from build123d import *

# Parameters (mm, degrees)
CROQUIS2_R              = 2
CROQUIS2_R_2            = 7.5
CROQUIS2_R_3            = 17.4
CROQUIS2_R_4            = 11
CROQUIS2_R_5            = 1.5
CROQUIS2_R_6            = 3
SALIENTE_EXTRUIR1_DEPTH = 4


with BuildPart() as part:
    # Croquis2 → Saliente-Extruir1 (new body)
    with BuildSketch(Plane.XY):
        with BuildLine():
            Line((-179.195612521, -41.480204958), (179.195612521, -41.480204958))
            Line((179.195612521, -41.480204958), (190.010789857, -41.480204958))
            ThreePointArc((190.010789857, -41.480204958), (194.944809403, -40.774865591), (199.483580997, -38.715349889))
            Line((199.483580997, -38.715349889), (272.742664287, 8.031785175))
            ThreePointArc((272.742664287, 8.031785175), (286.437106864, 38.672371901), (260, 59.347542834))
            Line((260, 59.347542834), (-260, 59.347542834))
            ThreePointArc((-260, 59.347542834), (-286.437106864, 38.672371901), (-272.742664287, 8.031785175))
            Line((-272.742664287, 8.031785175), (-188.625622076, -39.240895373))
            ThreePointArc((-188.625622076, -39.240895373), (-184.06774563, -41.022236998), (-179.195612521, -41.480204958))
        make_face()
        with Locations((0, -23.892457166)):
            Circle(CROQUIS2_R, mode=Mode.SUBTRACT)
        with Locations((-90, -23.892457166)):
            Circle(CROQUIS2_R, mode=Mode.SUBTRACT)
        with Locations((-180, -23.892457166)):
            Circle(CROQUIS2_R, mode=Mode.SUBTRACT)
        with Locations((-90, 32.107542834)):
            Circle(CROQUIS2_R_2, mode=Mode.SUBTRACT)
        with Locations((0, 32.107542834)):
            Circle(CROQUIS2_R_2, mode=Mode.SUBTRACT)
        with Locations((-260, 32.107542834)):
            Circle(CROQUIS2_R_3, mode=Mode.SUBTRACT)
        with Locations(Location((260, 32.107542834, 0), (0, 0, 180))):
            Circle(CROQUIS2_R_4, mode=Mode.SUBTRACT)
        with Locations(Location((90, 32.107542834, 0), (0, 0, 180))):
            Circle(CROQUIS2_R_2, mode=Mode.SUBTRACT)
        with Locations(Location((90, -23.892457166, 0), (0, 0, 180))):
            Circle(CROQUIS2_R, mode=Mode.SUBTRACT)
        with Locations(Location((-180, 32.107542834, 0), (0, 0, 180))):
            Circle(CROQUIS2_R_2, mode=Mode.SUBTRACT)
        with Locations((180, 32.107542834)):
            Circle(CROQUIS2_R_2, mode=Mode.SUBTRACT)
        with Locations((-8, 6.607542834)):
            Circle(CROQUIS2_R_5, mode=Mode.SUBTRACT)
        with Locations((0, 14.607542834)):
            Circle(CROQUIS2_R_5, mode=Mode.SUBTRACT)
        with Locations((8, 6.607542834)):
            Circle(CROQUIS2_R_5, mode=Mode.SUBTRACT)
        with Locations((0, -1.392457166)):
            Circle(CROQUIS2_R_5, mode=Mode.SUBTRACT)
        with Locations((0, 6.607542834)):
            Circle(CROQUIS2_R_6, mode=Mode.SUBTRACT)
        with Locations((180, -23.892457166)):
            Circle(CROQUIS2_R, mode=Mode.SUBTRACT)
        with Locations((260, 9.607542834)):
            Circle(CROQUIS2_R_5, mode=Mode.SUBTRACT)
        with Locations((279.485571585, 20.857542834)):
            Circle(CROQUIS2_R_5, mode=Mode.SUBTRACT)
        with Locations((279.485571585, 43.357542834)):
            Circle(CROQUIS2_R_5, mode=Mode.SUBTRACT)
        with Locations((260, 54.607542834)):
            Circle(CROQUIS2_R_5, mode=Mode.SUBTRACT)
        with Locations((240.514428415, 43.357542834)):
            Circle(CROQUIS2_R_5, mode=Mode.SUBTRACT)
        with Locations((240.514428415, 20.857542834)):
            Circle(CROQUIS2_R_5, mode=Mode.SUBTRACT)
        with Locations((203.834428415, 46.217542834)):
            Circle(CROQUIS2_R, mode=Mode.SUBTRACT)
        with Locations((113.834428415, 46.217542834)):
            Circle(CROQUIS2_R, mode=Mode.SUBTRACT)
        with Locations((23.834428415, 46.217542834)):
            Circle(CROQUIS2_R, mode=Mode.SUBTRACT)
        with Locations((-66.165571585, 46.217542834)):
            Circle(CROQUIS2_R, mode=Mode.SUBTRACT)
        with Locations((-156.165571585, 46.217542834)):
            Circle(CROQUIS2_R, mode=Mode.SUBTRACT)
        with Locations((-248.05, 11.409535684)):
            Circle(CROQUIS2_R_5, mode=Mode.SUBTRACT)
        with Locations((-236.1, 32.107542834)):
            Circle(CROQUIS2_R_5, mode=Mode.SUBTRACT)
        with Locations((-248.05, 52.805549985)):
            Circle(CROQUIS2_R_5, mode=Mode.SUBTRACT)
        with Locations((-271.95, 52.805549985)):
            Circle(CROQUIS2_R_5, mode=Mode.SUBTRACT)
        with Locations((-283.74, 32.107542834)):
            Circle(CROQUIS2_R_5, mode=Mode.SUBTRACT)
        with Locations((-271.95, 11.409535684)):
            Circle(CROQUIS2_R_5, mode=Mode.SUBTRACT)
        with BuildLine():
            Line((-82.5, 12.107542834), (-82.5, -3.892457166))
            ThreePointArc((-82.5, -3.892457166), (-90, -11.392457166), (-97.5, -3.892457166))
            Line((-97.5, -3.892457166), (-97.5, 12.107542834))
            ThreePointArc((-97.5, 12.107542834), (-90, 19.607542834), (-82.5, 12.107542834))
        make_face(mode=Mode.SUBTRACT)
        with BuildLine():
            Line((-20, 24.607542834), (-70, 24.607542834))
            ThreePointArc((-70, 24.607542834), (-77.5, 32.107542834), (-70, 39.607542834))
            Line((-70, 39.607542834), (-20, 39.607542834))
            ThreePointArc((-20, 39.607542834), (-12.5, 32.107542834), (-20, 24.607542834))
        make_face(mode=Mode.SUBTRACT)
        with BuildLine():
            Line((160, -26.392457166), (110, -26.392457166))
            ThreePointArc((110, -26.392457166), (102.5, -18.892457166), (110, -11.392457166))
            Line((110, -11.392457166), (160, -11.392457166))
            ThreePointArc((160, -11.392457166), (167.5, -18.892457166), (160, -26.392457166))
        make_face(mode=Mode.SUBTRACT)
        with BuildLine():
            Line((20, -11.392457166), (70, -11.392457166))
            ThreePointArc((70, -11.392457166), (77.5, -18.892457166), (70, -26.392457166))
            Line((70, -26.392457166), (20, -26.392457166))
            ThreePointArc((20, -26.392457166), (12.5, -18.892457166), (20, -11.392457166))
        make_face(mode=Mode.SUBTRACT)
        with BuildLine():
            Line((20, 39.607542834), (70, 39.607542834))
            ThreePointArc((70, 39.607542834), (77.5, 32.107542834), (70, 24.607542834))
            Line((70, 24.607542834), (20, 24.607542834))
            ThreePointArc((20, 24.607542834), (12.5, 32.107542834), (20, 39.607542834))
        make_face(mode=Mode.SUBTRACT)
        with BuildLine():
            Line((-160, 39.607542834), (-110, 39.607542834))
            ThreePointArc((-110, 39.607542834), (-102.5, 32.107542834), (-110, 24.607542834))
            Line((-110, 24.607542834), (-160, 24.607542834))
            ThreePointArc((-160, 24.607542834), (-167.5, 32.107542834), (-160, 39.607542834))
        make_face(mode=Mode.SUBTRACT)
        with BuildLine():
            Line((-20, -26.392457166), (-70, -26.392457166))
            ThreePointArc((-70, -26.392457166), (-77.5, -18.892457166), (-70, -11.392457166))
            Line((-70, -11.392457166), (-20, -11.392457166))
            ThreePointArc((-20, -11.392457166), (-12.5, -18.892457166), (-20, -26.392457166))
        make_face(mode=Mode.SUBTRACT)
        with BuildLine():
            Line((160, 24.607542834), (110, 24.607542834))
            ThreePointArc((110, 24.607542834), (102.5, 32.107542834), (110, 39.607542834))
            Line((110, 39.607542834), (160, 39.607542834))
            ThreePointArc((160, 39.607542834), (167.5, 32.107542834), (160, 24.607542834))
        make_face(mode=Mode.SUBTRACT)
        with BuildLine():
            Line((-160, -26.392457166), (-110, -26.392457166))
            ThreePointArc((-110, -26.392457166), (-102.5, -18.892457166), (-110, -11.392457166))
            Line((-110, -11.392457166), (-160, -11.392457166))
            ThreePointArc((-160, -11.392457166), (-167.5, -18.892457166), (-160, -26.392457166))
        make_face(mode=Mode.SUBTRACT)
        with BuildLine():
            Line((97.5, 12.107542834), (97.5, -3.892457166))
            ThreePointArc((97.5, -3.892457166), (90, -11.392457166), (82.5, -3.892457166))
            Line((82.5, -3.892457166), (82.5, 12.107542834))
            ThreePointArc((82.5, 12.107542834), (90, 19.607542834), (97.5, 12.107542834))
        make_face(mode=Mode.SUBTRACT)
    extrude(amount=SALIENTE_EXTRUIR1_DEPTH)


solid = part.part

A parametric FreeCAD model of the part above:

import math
import FreeCAD as App
import Part
import Sketcher
from FreeCAD import Vector

doc = App.newDocument("Part")
body = doc.addObject("PartDesign::Body", "Body")

sketch1 = doc.addObject("Sketcher::SketchObject", "Sketch")
body.addObject(sketch1)
sketch1.AttachmentSupport = (doc.XY_Plane, [""])
sketch1.MapMode = "FlatFace"
sketch1.addGeometry([
    Part.LineSegment(Vector(-179.2, -41.5, 0), Vector(190, -41.5, 0)),
    Part.ArcOfCircle(Part.Circle(Vector(190, -23.9, 0), Vector(0, 0, 1), 17.6), math.radians(-90), math.radians(-57)),
    Part.LineSegment(Vector(199.5, -38.7, 0), Vector(272.7, 8, 0)),
    Part.ArcOfCircle(Part.Circle(Vector(260, 32.1, 0), Vector(0, 0, 1), 27.2), math.radians(-62), math.radians(90)),
    Part.LineSegment(Vector(260, 59.3, 0), Vector(-260, 59.3, 0)),
    Part.ArcOfCircle(Part.Circle(Vector(-260, 32.1, 0), Vector(0, 0, 1), 27.2), math.radians(90), math.radians(242)),
    Part.LineSegment(Vector(-272.7, 8, 0), Vector(-188.6, -39.2, 0)),
    Part.ArcOfCircle(Part.Circle(Vector(-180, -23.9, 0), Vector(0, 0, 1), 17.6), math.radians(-119), math.radians(-87)),
    Part.Circle(Vector(-180, -23.9, 0), Vector(0, 0, 1), 2),
    Part.Circle(Vector(-90, -23.9, 0), Vector(0, 0, 1), 2),
    Part.LineSegment(Vector(-110, -26.4, 0), Vector(-160, -26.4, 0)),
    Part.ArcOfCircle(Part.Circle(Vector(-160, -18.9, 0), Vector(0, 0, 1), 7.5), math.radians(90), math.radians(270)),
    Part.LineSegment(Vector(-160, -11.4, 0), Vector(-110, -11.4, 0)),
    Part.ArcOfCircle(Part.Circle(Vector(-110, -18.9, 0), Vector(0, 0, 1), 7.5), math.radians(-90), math.radians(90)),
    Part.ArcOfCircle(Part.Circle(Vector(-20, -18.9, 0), Vector(0, 0, 1), 7.5), math.radians(-90), math.radians(90)),
    Part.LineSegment(Vector(-20, -26.4, 0), Vector(-70, -26.4, 0)),
    Part.ArcOfCircle(Part.Circle(Vector(-70, -18.9, 0), Vector(0, 0, 1), 7.5), math.radians(90), math.radians(270)),
    Part.LineSegment(Vector(-70, -11.4, 0), Vector(-20, -11.4, 0)),
    Part.Circle(Vector(-271.9, 11.4, 0), Vector(0, 0, 1), 1.5),
    Part.Circle(Vector(-248.1, 11.4, 0), Vector(0, 0, 1), 1.5),
    Part.ArcOfCircle(Part.Circle(Vector(-90, 12.1, 0), Vector(0, 0, 1), 7.5), math.radians(0), math.radians(180)),
    Part.LineSegment(Vector(-82.5, 12.1, 0), Vector(-82.5, -3.9, 0)),
    Part.ArcOfCircle(Part.Circle(Vector(-90, -3.9, 0), Vector(0, 0, 1), 7.5), math.radians(180), math.radians(360)),
    Part.LineSegment(Vector(-97.5, -3.9, 0), Vector(-97.5, 12.1, 0)),
    Part.Circle(Vector(-8, 6.6, 0), Vector(0, 0, 1), 1.5),
    Part.Circle(Vector(0, -23.9, 0), Vector(0, 0, 1), 2),
    Part.ArcOfCircle(Part.Circle(Vector(20, -18.9, 0), Vector(0, 0, 1), 7.5), math.radians(90), math.radians(270)),
    Part.LineSegment(Vector(20, -11.4, 0), Vector(70, -11.4, 0)),
    Part.ArcOfCircle(Part.Circle(Vector(70, -18.9, 0), Vector(0, 0, 1), 7.5), math.radians(-90), math.radians(90)),
    Part.LineSegment(Vector(70, -26.4, 0), Vector(20, -26.4, 0)),
    Part.Circle(Vector(90, -23.9, 0), Vector(0, 0, 1), 2),
    Part.ArcOfCircle(Part.Circle(Vector(160, -18.9, 0), Vector(0, 0, 1), 7.5), math.radians(-90), math.radians(90)),
    Part.LineSegment(Vector(160, -26.4, 0), Vector(110, -26.4, 0)),
    Part.ArcOfCircle(Part.Circle(Vector(110, -18.9, 0), Vector(0, 0, 1), 7.5), math.radians(90), math.radians(270)),
    Part.LineSegment(Vector(110, -11.4, 0), Vector(160, -11.4, 0)),
    Part.Circle(Vector(180, -23.9, 0), Vector(0, 0, 1), 2),
    Part.Circle(Vector(0, -1.4, 0), Vector(0, 0, 1), 1.5),
    Part.ArcOfCircle(Part.Circle(Vector(90, 12.1, 0), Vector(0, 0, 1), 7.5), math.radians(0), math.radians(180)),
    Part.LineSegment(Vector(97.5, 12.1, 0), Vector(97.5, -3.9, 0)),
    Part.ArcOfCircle(Part.Circle(Vector(90, -3.9, 0), Vector(0, 0, 1), 7.5), math.radians(180), math.radians(360)),
    Part.LineSegment(Vector(82.5, -3.9, 0), Vector(82.5, 12.1, 0)),
    Part.Circle(Vector(0, 6.6, 0), Vector(0, 0, 1), 3),
    Part.Circle(Vector(8, 6.6, 0), Vector(0, 0, 1), 1.5),
    Part.Circle(Vector(0, 14.6, 0), Vector(0, 0, 1), 1.5),
    Part.Circle(Vector(260, 9.6, 0), Vector(0, 0, 1), 1.5),
    Part.Circle(Vector(-283.7, 32.1, 0), Vector(0, 0, 1), 1.5),
    Part.Circle(Vector(-260, 32.1, 0), Vector(0, 0, 1), 17.4),
    Part.Circle(Vector(-236.1, 32.1, 0), Vector(0, 0, 1), 1.5),
    Part.Circle(Vector(-180, 32.1, 0), Vector(0, 0, 1), 7.5),
    Part.ArcOfCircle(Part.Circle(Vector(-160, 32.1, 0), Vector(0, 0, 1), 7.5), math.radians(90), math.radians(270)),
    Part.LineSegment(Vector(-160, 39.6, 0), Vector(-110, 39.6, 0)),
    Part.ArcOfCircle(Part.Circle(Vector(-110, 32.1, 0), Vector(0, 0, 1), 7.5), math.radians(-90), math.radians(90)),
    Part.LineSegment(Vector(-110, 24.6, 0), Vector(-160, 24.6, 0)),
    Part.Circle(Vector(-90, 32.1, 0), Vector(0, 0, 1), 7.5),
    Part.ArcOfCircle(Part.Circle(Vector(-20, 32.1, 0), Vector(0, 0, 1), 7.5), math.radians(-90), math.radians(90)),
    Part.LineSegment(Vector(-20, 24.6, 0), Vector(-70, 24.6, 0)),
    Part.ArcOfCircle(Part.Circle(Vector(-70, 32.1, 0), Vector(0, 0, 1), 7.5), math.radians(90), math.radians(270)),
    Part.LineSegment(Vector(-70, 39.6, 0), Vector(-20, 39.6, 0)),
    Part.Circle(Vector(-271.9, 52.8, 0), Vector(0, 0, 1), 1.5),
    Part.Circle(Vector(-248.1, 52.8, 0), Vector(0, 0, 1), 1.5),
    Part.Circle(Vector(-156.2, 46.2, 0), Vector(0, 0, 1), 2),
    Part.Circle(Vector(-66.2, 46.2, 0), Vector(0, 0, 1), 2),
    Part.Circle(Vector(0, 32.1, 0), Vector(0, 0, 1), 7.5),
    Part.ArcOfCircle(Part.Circle(Vector(20, 32.1, 0), Vector(0, 0, 1), 7.5), math.radians(90), math.radians(270)),
    Part.LineSegment(Vector(20, 39.6, 0), Vector(70, 39.6, 0)),
    Part.ArcOfCircle(Part.Circle(Vector(70, 32.1, 0), Vector(0, 0, 1), 7.5), math.radians(-90), math.radians(90)),
    Part.LineSegment(Vector(70, 24.6, 0), Vector(20, 24.6, 0)),
    Part.Circle(Vector(90, 32.1, 0), Vector(0, 0, 1), 7.5),
    Part.ArcOfCircle(Part.Circle(Vector(160, 32.1, 0), Vector(0, 0, 1), 7.5), math.radians(-90), math.radians(90)),
    Part.LineSegment(Vector(160, 24.6, 0), Vector(110, 24.6, 0)),
    Part.ArcOfCircle(Part.Circle(Vector(110, 32.1, 0), Vector(0, 0, 1), 7.5), math.radians(90), math.radians(270)),
    Part.LineSegment(Vector(110, 39.6, 0), Vector(160, 39.6, 0)),
    Part.Circle(Vector(240.5, 20.9, 0), Vector(0, 0, 1), 1.5),
    Part.Circle(Vector(279.5, 20.9, 0), Vector(0, 0, 1), 1.5),
    Part.Circle(Vector(180, 32.1, 0), Vector(0, 0, 1), 7.5),
    Part.Circle(Vector(260, 32.1, 0), Vector(0, 0, 1), 11),
    Part.Circle(Vector(23.8, 46.2, 0), Vector(0, 0, 1), 2),
    Part.Circle(Vector(113.8, 46.2, 0), Vector(0, 0, 1), 2),
    Part.Circle(Vector(240.5, 43.4, 0), Vector(0, 0, 1), 1.5),
    Part.Circle(Vector(279.5, 43.4, 0), Vector(0, 0, 1), 1.5),
    Part.Circle(Vector(203.8, 46.2, 0), Vector(0, 0, 1), 2),
    Part.Circle(Vector(260, 54.6, 0), Vector(0, 0, 1), 1.5),
], False)
sketch1.addConstraint([
    Sketcher.Constraint("Tangent", 0, 2, 1, 1),
    Sketcher.Constraint("Tangent", 1, 2, 2, 1),
    Sketcher.Constraint("Coincident", 2, 2, 3, 1),
    Sketcher.Constraint("Tangent", 3, 2, 4, 1),
    Sketcher.Constraint("Tangent", 4, 2, 5, 1),
    Sketcher.Constraint("Coincident", 5, 2, 6, 1),
    Sketcher.Constraint("Tangent", 6, 2, 7, 1),
    Sketcher.Constraint("Coincident", 7, 2, 0, 1),
    Sketcher.Constraint("Tangent", 10, 2, 11, 2),
    Sketcher.Constraint("Tangent", 11, 1, 12, 1),
    Sketcher.Constraint("Tangent", 12, 2, 13, 2),
    Sketcher.Constraint("Tangent", 13, 1, 10, 1),
    Sketcher.Constraint("Tangent", 14, 1, 15, 1),
    Sketcher.Constraint("Tangent", 15, 2, 16, 2),
    Sketcher.Constraint("Tangent", 16, 1, 17, 1),
    Sketcher.Constraint("Tangent", 17, 2, 14, 2),
    Sketcher.Constraint("Tangent", 20, 1, 21, 1),
    Sketcher.Constraint("Tangent", 21, 2, 22, 2),
    Sketcher.Constraint("Tangent", 22, 1, 23, 1),
    Sketcher.Constraint("Tangent", 23, 2, 20, 2),
    Sketcher.Constraint("Tangent", 26, 1, 27, 1),
    Sketcher.Constraint("Tangent", 27, 2, 28, 2),
    Sketcher.Constraint("Tangent", 28, 1, 29, 1),
    Sketcher.Constraint("Tangent", 29, 2, 26, 2),
    Sketcher.Constraint("Tangent", 31, 1, 32, 1),
    Sketcher.Constraint("Tangent", 32, 2, 33, 2),
    Sketcher.Constraint("Tangent", 33, 1, 34, 1),
    Sketcher.Constraint("Tangent", 34, 2, 31, 2),
    Sketcher.Constraint("Tangent", 37, 1, 38, 1),
    Sketcher.Constraint("Tangent", 38, 2, 39, 2),
    Sketcher.Constraint("Tangent", 39, 1, 40, 1),
    Sketcher.Constraint("Tangent", 40, 2, 37, 2),
    Sketcher.Constraint("Tangent", 49, 1, 50, 1),
    Sketcher.Constraint("Tangent", 50, 2, 51, 2),
    Sketcher.Constraint("Tangent", 51, 1, 52, 1),
    Sketcher.Constraint("Tangent", 52, 2, 49, 2),
    Sketcher.Constraint("Tangent", 54, 1, 55, 1),
    Sketcher.Constraint("Tangent", 55, 2, 56, 2),
    Sketcher.Constraint("Tangent", 56, 1, 57, 1),
    Sketcher.Constraint("Tangent", 57, 2, 54, 2),
    Sketcher.Constraint("Tangent", 63, 1, 64, 1),
    Sketcher.Constraint("Tangent", 64, 2, 65, 2),
    Sketcher.Constraint("Tangent", 65, 1, 66, 1),
    Sketcher.Constraint("Tangent", 66, 2, 63, 2),
    Sketcher.Constraint("Tangent", 68, 1, 69, 1),
    Sketcher.Constraint("Tangent", 69, 2, 70, 2),
    Sketcher.Constraint("Tangent", 70, 1, 71, 1),
    Sketcher.Constraint("Tangent", 71, 2, 68, 2),
    Sketcher.Constraint("Horizontal", 0),
    Sketcher.Constraint("Horizontal", 4),
    Sketcher.Constraint("Horizontal", 10),
    Sketcher.Constraint("Horizontal", 12),
    Sketcher.Constraint("Horizontal", 15),
    Sketcher.Constraint("Horizontal", 17),
    Sketcher.Constraint("Vertical", 21),
    Sketcher.Constraint("Vertical", 23),
    Sketcher.Constraint("Horizontal", 27),
    Sketcher.Constraint("Horizontal", 29),
    Sketcher.Constraint("Horizontal", 32),
    Sketcher.Constraint("Horizontal", 34),
    Sketcher.Constraint("Vertical", 38),
    Sketcher.Constraint("Vertical", 40),
    Sketcher.Constraint("Horizontal", 50),
    Sketcher.Constraint("Horizontal", 52),
    Sketcher.Constraint("Horizontal", 55),
    Sketcher.Constraint("Horizontal", 57),
    Sketcher.Constraint("Horizontal", 64),
    Sketcher.Constraint("Horizontal", 66),
    Sketcher.Constraint("Horizontal", 69),
    Sketcher.Constraint("Horizontal", 71),
    Sketcher.Constraint("Coincident", 8, 3, 7, 3),
    Sketcher.Constraint("Coincident", 46, 3, 5, 3),
    Sketcher.Constraint("Coincident", 75, 3, 3, 3),
    Sketcher.Constraint("Equal", 3, 5),
    Sketcher.Constraint("Equal", 8, 9),
    Sketcher.Constraint("Equal", 13, 14),
    Sketcher.Constraint("Equal", 18, 19),
    Sketcher.Constraint("Equal", 16, 20),
    Sketcher.Constraint("Equal", 19, 24),
    Sketcher.Constraint("Equal", 9, 25),
    Sketcher.Constraint("Equal", 22, 26),
    Sketcher.Constraint("Equal", 25, 30),
    Sketcher.Constraint("Equal", 28, 31),
    Sketcher.Constraint("Equal", 30, 35),
    Sketcher.Constraint("Equal", 24, 36),
    Sketcher.Constraint("Equal", 33, 37),
    Sketcher.Constraint("Equal", 36, 42),
    Sketcher.Constraint("Equal", 42, 43),
    Sketcher.Constraint("Equal", 43, 44),
    Sketcher.Constraint("Equal", 44, 45),
    Sketcher.Constraint("Equal", 45, 47),
    Sketcher.Constraint("Equal", 39, 48),
    Sketcher.Constraint("Equal", 48, 49),
    Sketcher.Constraint("Equal", 51, 53),
    Sketcher.Constraint("Equal", 53, 54),
    Sketcher.Constraint("Equal", 47, 58),
    Sketcher.Constraint("Equal", 58, 59),
    Sketcher.Constraint("Equal", 35, 60),
    Sketcher.Constraint("Equal", 60, 61),
    Sketcher.Constraint("Equal", 56, 62),
    Sketcher.Constraint("Equal", 62, 63),
    Sketcher.Constraint("Equal", 65, 67),
    Sketcher.Constraint("Equal", 67, 68),
    Sketcher.Constraint("Equal", 59, 72),
    Sketcher.Constraint("Equal", 72, 73),
    Sketcher.Constraint("Equal", 70, 74),
    Sketcher.Constraint("Equal", 61, 76),
    Sketcher.Constraint("Equal", 76, 77),
    Sketcher.Constraint("Equal", 73, 78),
    Sketcher.Constraint("Equal", 78, 79),
    Sketcher.Constraint("Equal", 77, 80),
    Sketcher.Constraint("Equal", 79, 81),
    Sketcher.Constraint("Symmetric", 14, 3, 26, 3, -2),
    Sketcher.Constraint("Symmetric", 9, 3, 30, 3, -2),
    Sketcher.Constraint("Symmetric", 11, 3, 31, 3, -2),
    Sketcher.Constraint("Symmetric", 7, 3, 35, 3, -2),
    Sketcher.Constraint("Symmetric", 20, 3, 37, 3, -2),
    Sketcher.Constraint("Symmetric", 24, 3, 42, 3, -2),
    Sketcher.Constraint("Symmetric", 54, 3, 63, 3, -2),
    Sketcher.Constraint("Symmetric", 53, 3, 67, 3, -2),
    Sketcher.Constraint("Symmetric", 49, 3, 68, 3, -2),
    Sketcher.Constraint("Symmetric", 48, 3, 74, 3, -2),
    Sketcher.Constraint("Symmetric", 2, 2, 5, 2, -2),
    Sketcher.Constraint("PointOnObject", 25, 3, -2),
    Sketcher.Constraint("PointOnObject", 36, 3, -2),
    Sketcher.Constraint("PointOnObject", 41, 3, -2),
    Sketcher.Constraint("PointOnObject", 43, 3, -2),
    Sketcher.Constraint("PointOnObject", 62, 3, -2),
    Sketcher.Constraint("Horizontal", 8, 3, 9, 3),
    Sketcher.Constraint("Horizontal", 13, 3, 14, 3),
    Sketcher.Constraint("Horizontal", 18, 3, 19, 3),
    Sketcher.Constraint("Horizontal", 9, 3, 25, 3),
    Sketcher.Constraint("Horizontal", 22, 3, 39, 3),
    Sketcher.Constraint("Horizontal", 24, 3, 41, 3),
    Sketcher.Constraint("Horizontal", 5, 3, 45, 3),
    Sketcher.Constraint("Horizontal", 46, 3, 47, 3),
    Sketcher.Constraint("Horizontal", 47, 3, 48, 3),
    Sketcher.Constraint("Horizontal", 48, 3, 49, 3),
    Sketcher.Constraint("Horizontal", 51, 3, 53, 3),
    Sketcher.Constraint("Horizontal", 53, 3, 54, 3),
    Sketcher.Constraint("Horizontal", 58, 3, 59, 3),
    Sketcher.Constraint("Horizontal", 60, 3, 61, 3),
    Sketcher.Constraint("Horizontal", 56, 3, 62, 3),
    Sketcher.Constraint("Horizontal", 72, 3, 73, 3),
    Sketcher.Constraint("Horizontal", 61, 3, 76, 3),
    Sketcher.Constraint("Horizontal", 76, 3, 77, 3),
    Sketcher.Constraint("Horizontal", 78, 3, 79, 3),
    Sketcher.Constraint("Horizontal", 77, 3, 80, 3),
    Sketcher.Constraint("Vertical", 9, 3, 20, 3),
    Sketcher.Constraint("Vertical", 3, 3, 44, 3),
    Sketcher.Constraint("Vertical", 8, 3, 48, 3),
    Sketcher.Constraint("Vertical", 11, 3, 49, 3),
    Sketcher.Constraint("Vertical", 13, 3, 51, 3),
    Sketcher.Constraint("Vertical", 22, 3, 53, 3),
    Sketcher.Constraint("Vertical", 14, 3, 54, 3),
    Sketcher.Constraint("Vertical", 16, 3, 56, 3),
    Sketcher.Constraint("Vertical", 18, 3, 58, 3),
    Sketcher.Constraint("Vertical", 19, 3, 59, 3),
    Sketcher.Constraint("Vertical", 28, 3, 65, 3),
    Sketcher.Constraint("Vertical", 33, 3, 70, 3),
    Sketcher.Constraint("Vertical", 72, 3, 78, 3),
    Sketcher.Constraint("Vertical", 73, 3, 79, 3),
    Sketcher.Constraint("Vertical", 75, 3, 81, 3),
    Sketcher.Constraint("Equal", 12, 15),
    Sketcher.Constraint("Equal", 17, 27),
    Sketcher.Constraint("Equal", 29, 32),
    Sketcher.Constraint("Diameter", 8, 4.0),
    Sketcher.Constraint("Diameter", 18, 3.0),
    Sketcher.Constraint("Diameter", 41, 6.0),
    Sketcher.Constraint("Diameter", 48, 15.0),
    Sketcher.Constraint("Diameter", 75, 22.0),
    Sketcher.Constraint("Diameter", 46, 34.8),
    Sketcher.Constraint("DistanceX", 4, 2, 4, 1, 520.0),
    Sketcher.Constraint("DistanceX", 10, 2, 10, 1, 50.0),
    Sketcher.Constraint("DistanceY", 21, 2, 21, 1, 16.0),
    Sketcher.Constraint("Radius", 1, 17.61),
    Sketcher.Constraint("Radius", 3, 27.24),
    Sketcher.Constraint("DistanceX", 7, 3, -1, 1, 180.0),
    Sketcher.Constraint("DistanceX", 9, 3, -1, 1, 90.0),
    Sketcher.Constraint("DistanceX", 11, 3, -1, 1, 160.0),
    Sketcher.Constraint("DistanceX", 14, 3, -1, 1, 20.0),
    Sketcher.Constraint("DistanceX", 24, 3, -1, 1, 8.0),
    Sketcher.Constraint("DistanceX", 47, 3, -1, 1, 236.1),
    Sketcher.Constraint("DistanceX", 18, 3, -1, 1, 271.95),
    Sketcher.Constraint("DistanceX", 19, 3, -1, 1, 248.05),
    Sketcher.Constraint("DistanceX", 45, 3, -1, 1, 283.74),
    Sketcher.Constraint("Radius", 7, 17.606133),
    Sketcher.Constraint("DistanceX", 0, 1, 0, 2, 369.206402),
    Sketcher.Constraint("DistanceX", -1, 1, 1, 3, 190.01079),
    Sketcher.Constraint("DistanceY", -1, 1, 58, 3, 52.80555),
    Sketcher.Constraint("DistanceX", 60, 3, -1, 1, 156.165572),
    Sketcher.Constraint("DistanceX", 61, 3, -1, 1, 66.165572),
    Sketcher.Constraint("DistanceX", -1, 1, 72, 3, 240.514428),
    Sketcher.Constraint("DistanceX", -1, 1, 73, 3, 279.485572),
    Sketcher.Constraint("DistanceX", -1, 1, 76, 3, 23.834428),
    Sketcher.Constraint("DistanceX", -1, 1, 77, 3, 113.834428),
    Sketcher.Constraint("DistanceX", -1, 1, 80, 3, 203.834428),
    Sketcher.Constraint("DistanceX", -1, 1, 1, 2, 199.483581),
    Sketcher.Constraint("DistanceY", 1, 2, -1, 1, 38.71535),
    Sketcher.Constraint("Distance", 2, 86.903325),
    Sketcher.Constraint("DistanceY", 11, 3, -1, 1, 18.892457),
    Sketcher.Constraint("DistanceY", -1, 1, 18, 3, 11.409536),
    Sketcher.Constraint("DistanceY", -1, 1, 20, 3, 12.107543),
    Sketcher.Constraint("DistanceY", -1, 1, 24, 3, 6.607543),
    Sketcher.Constraint("DistanceY", 36, 3, -1, 1, 1.392457),
    Sketcher.Constraint("DistanceY", -1, 1, 43, 3, 14.607543),
    Sketcher.Constraint("DistanceY", -1, 1, 44, 3, 9.607543),
    Sketcher.Constraint("DistanceY", -1, 1, 60, 3, 46.217543),
    Sketcher.Constraint("DistanceY", -1, 1, 72, 3, 20.857543),
    Sketcher.Constraint("DistanceY", -1, 1, 78, 3, 43.357543),
    Sketcher.Constraint("DistanceY", -1, 1, 81, 3, 54.607543),
])
pad1 = doc.addObject("PartDesign::Pad", "Pad")
body.addObject(pad1)
pad1.Profile = sketch1
pad1.Length = 4

doc.recompute()
